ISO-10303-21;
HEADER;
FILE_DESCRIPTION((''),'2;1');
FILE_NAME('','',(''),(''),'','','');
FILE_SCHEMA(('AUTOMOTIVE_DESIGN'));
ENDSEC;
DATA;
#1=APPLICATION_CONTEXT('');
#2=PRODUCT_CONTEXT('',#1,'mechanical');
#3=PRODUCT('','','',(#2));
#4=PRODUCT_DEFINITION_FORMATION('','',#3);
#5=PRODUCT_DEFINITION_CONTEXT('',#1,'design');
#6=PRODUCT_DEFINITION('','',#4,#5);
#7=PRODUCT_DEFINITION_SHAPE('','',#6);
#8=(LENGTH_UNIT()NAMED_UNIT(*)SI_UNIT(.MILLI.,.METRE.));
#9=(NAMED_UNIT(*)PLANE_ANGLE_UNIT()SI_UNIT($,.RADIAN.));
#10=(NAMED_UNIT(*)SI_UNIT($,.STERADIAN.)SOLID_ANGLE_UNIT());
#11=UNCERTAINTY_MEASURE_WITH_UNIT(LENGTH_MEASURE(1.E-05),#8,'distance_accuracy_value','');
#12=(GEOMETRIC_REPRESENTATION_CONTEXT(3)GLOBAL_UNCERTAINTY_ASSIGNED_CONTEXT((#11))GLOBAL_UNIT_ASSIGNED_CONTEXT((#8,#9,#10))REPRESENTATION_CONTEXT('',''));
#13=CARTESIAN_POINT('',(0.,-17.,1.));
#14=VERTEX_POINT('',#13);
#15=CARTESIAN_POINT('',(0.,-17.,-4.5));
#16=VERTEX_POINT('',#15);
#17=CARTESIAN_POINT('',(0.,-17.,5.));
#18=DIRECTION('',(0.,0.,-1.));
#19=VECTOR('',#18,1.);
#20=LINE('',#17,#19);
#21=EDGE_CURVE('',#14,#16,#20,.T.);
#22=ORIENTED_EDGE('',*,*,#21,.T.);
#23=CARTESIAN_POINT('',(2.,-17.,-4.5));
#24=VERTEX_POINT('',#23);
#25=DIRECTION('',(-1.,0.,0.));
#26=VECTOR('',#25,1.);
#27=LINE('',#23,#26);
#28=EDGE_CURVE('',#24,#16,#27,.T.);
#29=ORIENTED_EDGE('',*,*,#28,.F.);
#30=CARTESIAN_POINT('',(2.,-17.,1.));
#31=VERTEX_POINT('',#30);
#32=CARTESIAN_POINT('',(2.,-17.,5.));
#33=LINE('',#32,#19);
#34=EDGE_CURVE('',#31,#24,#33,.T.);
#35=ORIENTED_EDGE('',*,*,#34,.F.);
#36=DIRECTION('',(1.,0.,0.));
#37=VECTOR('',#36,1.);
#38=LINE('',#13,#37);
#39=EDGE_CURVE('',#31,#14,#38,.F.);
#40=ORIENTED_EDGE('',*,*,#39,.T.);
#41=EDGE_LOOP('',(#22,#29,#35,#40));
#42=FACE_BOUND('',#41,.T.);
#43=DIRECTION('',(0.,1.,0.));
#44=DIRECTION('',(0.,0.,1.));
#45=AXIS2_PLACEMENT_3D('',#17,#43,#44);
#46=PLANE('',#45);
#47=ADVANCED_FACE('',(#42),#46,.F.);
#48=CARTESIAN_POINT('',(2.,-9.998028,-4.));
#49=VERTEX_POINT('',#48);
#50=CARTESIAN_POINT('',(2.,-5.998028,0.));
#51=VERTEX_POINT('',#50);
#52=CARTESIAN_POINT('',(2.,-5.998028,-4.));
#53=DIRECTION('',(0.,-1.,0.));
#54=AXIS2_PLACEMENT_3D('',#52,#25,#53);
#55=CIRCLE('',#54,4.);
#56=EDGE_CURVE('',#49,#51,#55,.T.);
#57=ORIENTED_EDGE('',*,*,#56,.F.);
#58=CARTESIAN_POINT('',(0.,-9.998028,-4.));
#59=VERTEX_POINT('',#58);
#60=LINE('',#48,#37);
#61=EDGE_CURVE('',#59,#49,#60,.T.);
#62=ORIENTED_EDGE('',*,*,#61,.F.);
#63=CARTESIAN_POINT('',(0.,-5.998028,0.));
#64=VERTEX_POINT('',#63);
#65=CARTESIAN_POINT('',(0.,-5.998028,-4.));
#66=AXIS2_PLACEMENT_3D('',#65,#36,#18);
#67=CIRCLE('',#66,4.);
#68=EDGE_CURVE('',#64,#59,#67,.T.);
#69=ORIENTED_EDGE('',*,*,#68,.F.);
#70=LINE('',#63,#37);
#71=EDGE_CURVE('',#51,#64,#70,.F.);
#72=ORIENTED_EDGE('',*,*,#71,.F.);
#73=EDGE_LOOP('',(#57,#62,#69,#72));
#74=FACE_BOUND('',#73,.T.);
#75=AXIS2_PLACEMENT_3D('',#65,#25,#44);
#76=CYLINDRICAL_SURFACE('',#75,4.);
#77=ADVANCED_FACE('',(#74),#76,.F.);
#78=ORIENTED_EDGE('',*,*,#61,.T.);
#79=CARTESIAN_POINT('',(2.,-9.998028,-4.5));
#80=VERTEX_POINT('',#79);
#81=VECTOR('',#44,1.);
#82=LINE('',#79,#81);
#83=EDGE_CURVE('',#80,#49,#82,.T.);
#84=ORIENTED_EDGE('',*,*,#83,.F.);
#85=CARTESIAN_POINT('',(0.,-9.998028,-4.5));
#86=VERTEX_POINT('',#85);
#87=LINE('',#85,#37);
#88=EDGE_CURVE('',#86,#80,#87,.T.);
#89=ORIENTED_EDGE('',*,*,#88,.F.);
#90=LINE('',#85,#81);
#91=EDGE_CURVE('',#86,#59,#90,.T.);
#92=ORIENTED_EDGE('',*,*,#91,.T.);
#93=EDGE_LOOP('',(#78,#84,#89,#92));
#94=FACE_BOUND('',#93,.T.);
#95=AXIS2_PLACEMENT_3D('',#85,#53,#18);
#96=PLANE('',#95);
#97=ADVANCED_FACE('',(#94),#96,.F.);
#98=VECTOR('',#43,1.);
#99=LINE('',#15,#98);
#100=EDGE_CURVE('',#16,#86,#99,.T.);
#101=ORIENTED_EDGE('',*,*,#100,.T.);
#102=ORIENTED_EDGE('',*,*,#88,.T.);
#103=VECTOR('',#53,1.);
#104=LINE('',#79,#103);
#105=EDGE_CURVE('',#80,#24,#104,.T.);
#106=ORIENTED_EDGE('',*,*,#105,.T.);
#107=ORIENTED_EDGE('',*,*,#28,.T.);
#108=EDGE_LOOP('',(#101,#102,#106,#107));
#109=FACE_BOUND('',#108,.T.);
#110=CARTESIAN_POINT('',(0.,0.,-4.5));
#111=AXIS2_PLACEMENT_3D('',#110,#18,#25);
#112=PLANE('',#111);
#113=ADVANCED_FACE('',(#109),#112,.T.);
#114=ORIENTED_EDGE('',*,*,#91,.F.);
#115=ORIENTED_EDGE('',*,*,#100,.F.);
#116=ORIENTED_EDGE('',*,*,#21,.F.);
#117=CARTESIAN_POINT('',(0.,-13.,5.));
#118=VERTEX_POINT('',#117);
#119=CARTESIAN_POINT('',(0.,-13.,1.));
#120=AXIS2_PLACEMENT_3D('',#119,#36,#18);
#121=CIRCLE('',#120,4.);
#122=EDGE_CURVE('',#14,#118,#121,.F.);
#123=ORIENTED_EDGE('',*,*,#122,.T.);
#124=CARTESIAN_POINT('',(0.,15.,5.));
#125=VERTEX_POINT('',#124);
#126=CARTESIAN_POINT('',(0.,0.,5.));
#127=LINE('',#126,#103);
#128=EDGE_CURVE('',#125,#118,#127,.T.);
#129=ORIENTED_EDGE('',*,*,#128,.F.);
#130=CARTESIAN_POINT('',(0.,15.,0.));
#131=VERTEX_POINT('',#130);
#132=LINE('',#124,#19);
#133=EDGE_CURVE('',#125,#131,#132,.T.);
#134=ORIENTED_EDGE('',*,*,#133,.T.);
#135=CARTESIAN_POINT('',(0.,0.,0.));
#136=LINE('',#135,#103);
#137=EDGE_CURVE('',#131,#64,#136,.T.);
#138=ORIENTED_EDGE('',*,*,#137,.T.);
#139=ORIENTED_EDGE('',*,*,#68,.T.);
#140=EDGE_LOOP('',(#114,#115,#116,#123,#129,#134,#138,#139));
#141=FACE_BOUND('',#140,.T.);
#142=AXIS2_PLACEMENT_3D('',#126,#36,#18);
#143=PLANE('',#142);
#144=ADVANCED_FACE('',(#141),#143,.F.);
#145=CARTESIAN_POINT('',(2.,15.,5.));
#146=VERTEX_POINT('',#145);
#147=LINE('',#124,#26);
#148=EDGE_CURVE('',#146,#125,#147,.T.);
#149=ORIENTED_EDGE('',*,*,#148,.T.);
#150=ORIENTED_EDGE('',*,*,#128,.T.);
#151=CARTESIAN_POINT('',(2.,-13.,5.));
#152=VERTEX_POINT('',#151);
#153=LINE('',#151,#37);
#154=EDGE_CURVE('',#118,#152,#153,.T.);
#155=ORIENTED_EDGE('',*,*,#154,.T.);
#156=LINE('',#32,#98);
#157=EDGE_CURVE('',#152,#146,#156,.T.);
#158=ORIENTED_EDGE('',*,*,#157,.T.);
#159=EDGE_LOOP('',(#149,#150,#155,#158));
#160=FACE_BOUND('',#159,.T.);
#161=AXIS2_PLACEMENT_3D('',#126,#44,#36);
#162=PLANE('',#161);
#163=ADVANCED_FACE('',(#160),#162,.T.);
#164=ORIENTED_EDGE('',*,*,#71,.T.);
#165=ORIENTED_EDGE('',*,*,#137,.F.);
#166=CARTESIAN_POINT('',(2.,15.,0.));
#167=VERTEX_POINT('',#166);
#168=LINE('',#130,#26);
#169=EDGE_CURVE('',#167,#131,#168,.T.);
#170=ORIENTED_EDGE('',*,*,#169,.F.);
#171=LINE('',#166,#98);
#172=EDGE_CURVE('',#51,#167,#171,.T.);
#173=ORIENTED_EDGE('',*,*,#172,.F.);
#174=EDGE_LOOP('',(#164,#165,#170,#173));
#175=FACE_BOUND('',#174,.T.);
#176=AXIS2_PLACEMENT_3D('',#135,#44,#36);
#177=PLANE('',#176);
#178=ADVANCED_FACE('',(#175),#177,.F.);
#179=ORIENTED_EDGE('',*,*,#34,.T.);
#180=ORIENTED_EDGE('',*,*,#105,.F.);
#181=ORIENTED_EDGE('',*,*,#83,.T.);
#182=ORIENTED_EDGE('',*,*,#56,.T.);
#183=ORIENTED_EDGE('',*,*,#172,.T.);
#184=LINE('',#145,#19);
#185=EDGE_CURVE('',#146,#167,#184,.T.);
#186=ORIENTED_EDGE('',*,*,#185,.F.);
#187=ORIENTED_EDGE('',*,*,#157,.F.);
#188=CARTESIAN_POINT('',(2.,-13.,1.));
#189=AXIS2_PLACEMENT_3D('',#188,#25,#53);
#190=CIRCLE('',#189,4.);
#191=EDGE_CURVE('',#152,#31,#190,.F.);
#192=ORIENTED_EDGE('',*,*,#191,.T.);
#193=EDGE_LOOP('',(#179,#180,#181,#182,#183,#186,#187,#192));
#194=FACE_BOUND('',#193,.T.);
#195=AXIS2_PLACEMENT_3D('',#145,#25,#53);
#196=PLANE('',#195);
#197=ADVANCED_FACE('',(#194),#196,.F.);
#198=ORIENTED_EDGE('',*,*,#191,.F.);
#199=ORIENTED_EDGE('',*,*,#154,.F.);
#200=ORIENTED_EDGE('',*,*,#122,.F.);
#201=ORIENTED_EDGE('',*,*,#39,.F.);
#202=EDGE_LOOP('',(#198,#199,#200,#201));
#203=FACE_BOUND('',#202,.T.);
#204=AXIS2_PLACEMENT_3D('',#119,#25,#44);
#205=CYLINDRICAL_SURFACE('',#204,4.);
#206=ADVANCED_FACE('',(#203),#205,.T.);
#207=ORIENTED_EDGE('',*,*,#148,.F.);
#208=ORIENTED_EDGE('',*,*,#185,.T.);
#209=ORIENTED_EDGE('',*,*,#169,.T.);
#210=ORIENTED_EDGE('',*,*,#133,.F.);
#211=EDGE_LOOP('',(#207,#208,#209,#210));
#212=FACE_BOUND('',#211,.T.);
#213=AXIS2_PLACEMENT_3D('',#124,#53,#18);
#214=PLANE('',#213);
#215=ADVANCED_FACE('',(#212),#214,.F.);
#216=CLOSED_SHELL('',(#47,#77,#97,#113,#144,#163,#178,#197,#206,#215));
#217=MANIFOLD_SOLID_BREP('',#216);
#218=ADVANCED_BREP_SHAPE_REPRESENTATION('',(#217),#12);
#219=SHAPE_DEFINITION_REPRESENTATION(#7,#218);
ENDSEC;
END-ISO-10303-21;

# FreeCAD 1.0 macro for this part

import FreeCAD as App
import Part
import Sketcher
Q = App.Units.Quantity


def edges_at(feature, points):
    """Names of the edges that pass closest to the given points."""
    edges = feature.Shape.Edges
    near = lambda p: min(range(len(edges)), key=lambda i: edges[i].distToShape(Part.Vertex(*p))[0])
    return sorted({f"Edge{near(p) + 1}" for p in points})

doc = App.newDocument("Part")
body = doc.addObject("PartDesign::Body", "Body")

# Sketch on XY plane
sketch1 = body.newObject("Sketcher::SketchObject", "Sketch")
sketch1.AttachmentSupport = (doc.getObject("XY_Plane"), [""])
sketch1.MapMode = "FlatFace"
sketch1.addGeometry([
    Part.LineSegment(App.Vector(0, 15, 0), App.Vector(0, -17, 0)),
    Part.LineSegment(App.Vector(0, -17, 0), App.Vector(2, -17, 0)),
    Part.LineSegment(App.Vector(2, -17, 0), App.Vector(2, 15, 0)),
    Part.LineSegment(App.Vector(2, 15, 0), App.Vector(0, 15, 0)),
], False)
sketch1.addConstraint([
    Sketcher.Constraint("Coincident", 0, 2, 1, 1),
    Sketcher.Constraint("Coincident", 1, 2, 2, 1),
    Sketcher.Constraint("Coincident", 2, 2, 3, 1),
    Sketcher.Constraint("Coincident", 3, 2, 0, 1),
    Sketcher.Constraint("Vertical", 0),
    Sketcher.Constraint("Horizontal", 1),
    Sketcher.Constraint("Vertical", 2),
    Sketcher.Constraint("Horizontal", 3),
    Sketcher.Constraint("PointOnObject", 0, 2, -2),
    Sketcher.Constraint("DistanceX", 1, 1, 1, 2, Q("2 mm")),
    Sketcher.Constraint("DistanceY", 0, 2, 0, 1, Q("32 mm")),
    Sketcher.Constraint("DistanceY", 0, 2, -1, 1, Q("17 mm")),
])
pad1 = body.newObject("PartDesign::Pad", "Pad")
pad1.Profile = sketch1
pad1.Length = 5

# Sketch on XY plane
sketch2 = body.newObject("Sketcher::SketchObject", "Sketch001")
sketch2.AttachmentSupport = (doc.getObject("XY_Plane"), [""])
sketch2.MapMode = "FlatFace"
sketch2.addGeometry([
    Part.LineSegment(App.Vector(2, -10, 0), App.Vector(2, -17, 0)),
    Part.LineSegment(App.Vector(2, -17, 0), App.Vector(0, -17, 0)),
    Part.LineSegment(App.Vector(0, -17, 0), App.Vector(0, -10, 0)),
    Part.LineSegment(App.Vector(0, -10, 0), App.Vector(2, -10, 0)),
], False)
sketch2.addConstraint([
    Sketcher.Constraint("Coincident", 0, 2, 1, 1),
    Sketcher.Constraint("Coincident", 1, 2, 2, 1),
    Sketcher.Constraint("Coincident", 2, 2, 3, 1),
    Sketcher.Constraint("Coincident", 3, 2, 0, 1),
    Sketcher.Constraint("Vertical", 0),
    Sketcher.Constraint("Horizontal", 1),
    Sketcher.Constraint("Vertical", 2),
    Sketcher.Constraint("Horizontal", 3),
    Sketcher.Constraint("PointOnObject", 1, 2, -2),
    Sketcher.Constraint("DistanceX", 1, 2, 1, 1, Q("2 mm")),
    Sketcher.Constraint("DistanceY", 0, 2, -1, 1, Q("17 mm")),
    Sketcher.Constraint("DistanceY", 0, 2, 0, 1, Q("7.001972 mm")),
])
pad2 = body.newObject("PartDesign::Pad", "Pad001")
pad2.Profile = sketch2
pad2.Length = 4.5
pad2.Reversed = True
doc.recompute()

fillet = body.newObject("PartDesign::Fillet", "Fillet")
fillet.Base = (pad2, edges_at(pad2, [(1, -9.998, 0), (1, -17, 5)]))
fillet.Radius = 4

doc.recompute()
